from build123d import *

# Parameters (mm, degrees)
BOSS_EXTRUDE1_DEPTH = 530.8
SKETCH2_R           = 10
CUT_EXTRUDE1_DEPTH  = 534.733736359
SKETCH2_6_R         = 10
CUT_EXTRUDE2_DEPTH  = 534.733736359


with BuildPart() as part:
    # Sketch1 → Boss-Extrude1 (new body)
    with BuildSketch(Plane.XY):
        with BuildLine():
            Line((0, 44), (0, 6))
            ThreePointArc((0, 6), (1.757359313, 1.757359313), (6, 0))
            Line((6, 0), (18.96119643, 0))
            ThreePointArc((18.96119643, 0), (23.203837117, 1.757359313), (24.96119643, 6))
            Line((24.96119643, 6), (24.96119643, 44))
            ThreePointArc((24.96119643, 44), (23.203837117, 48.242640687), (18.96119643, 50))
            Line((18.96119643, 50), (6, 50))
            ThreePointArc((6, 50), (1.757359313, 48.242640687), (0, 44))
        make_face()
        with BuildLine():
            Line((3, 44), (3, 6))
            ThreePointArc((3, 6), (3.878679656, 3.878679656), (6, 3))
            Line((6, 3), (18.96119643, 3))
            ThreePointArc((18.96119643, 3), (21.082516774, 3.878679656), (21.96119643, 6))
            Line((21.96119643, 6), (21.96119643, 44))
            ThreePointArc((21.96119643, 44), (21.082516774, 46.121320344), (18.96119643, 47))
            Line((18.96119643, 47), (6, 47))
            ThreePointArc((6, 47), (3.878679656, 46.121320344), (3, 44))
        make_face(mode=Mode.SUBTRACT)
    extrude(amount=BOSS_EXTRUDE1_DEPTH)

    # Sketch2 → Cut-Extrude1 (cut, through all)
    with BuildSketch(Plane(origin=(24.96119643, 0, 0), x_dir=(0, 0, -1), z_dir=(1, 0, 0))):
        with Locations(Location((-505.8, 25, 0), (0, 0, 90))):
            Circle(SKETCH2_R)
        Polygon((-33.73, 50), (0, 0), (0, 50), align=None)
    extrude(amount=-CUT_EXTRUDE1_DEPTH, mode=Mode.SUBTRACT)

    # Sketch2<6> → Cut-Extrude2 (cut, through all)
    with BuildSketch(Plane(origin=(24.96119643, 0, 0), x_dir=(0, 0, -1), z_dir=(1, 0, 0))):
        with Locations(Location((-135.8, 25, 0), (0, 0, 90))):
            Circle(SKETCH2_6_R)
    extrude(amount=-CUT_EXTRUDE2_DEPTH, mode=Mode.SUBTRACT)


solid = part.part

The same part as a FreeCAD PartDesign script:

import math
import FreeCAD as App
import Part
import Sketcher

V = App.Vector

doc = App.newDocument("Part")
body = doc.addObject("PartDesign::Body", "Body")

sketch1 = body.newObject("Sketcher::SketchObject", "Sketch")
sketch1.AttachmentSupport = (doc.getObject("XY_Plane"), [""])
sketch1.MapMode = "FlatFace"
sketch1.addGeometry([
    Part.LineSegment(V(0, 44, 0), V(0, 6, 0)),
    Part.ArcOfCircle(Part.Circle(V(6, 6, 0), V(0, 0, 1), 6), math.radians(180), math.radians(270)),
    Part.LineSegment(V(6, 0, 0), V(19, 0, 0)),
    Part.ArcOfCircle(Part.Circle(V(19, 6, 0), V(0, 0, 1), 6), math.radians(-90), math.radians(0)),
    Part.LineSegment(V(25, 6, 0), V(25, 44, 0)),
    Part.ArcOfCircle(Part.Circle(V(19, 44, 0), V(0, 0, 1), 6), math.radians(0), math.radians(90)),
    Part.LineSegment(V(19, 50, 0), V(6, 50, 0)),
    Part.ArcOfCircle(Part.Circle(V(6, 44, 0), V(0, 0, 1), 6), math.radians(90), math.radians(180)),
    Part.LineSegment(V(3, 6, 0), V(3, 44, 0)),
    Part.ArcOfCircle(Part.Circle(V(6, 44, 0), V(0, 0, 1), 3), math.radians(90), math.radians(180)),
    Part.LineSegment(V(6, 47, 0), V(19, 47, 0)),
    Part.ArcOfCircle(Part.Circle(V(19, 44, 0), V(0, 0, 1), 3), math.radians(0), math.radians(90)),
    Part.LineSegment(V(22, 44, 0), V(22, 6, 0)),
    Part.ArcOfCircle(Part.Circle(V(19, 6, 0), V(0, 0, 1), 3), math.radians(-90), math.radians(0)),
    Part.LineSegment(V(19, 3, 0), V(6, 3, 0)),
    Part.ArcOfCircle(Part.Circle(V(6, 6, 0), V(0, 0, 1), 3), math.radians(180), math.radians(270)),
], False)
sketch1.addConstraint([
    Sketcher.Constraint("Tangent", 0, 2, 1, 1),
    Sketcher.Constraint("Tangent", 1, 2, 2, 1),
    Sketcher.Constraint("Tangent", 2, 2, 3, 1),
    Sketcher.Constraint("Tangent", 3, 2, 4, 1),
    Sketcher.Constraint("Tangent", 4, 2, 5, 1),
    Sketcher.Constraint("Tangent", 5, 2, 6, 1),
    Sketcher.Constraint("Tangent", 6, 2, 7, 1),
    Sketcher.Constraint("Tangent", 7, 2, 0, 1),
    Sketcher.Constraint("Tangent", 8, 2, 9, 2),
    Sketcher.Constraint("Tangent", 9, 1, 10, 1),
    Sketcher.Constraint("Tangent", 10, 2, 11, 2),
    Sketcher.Constraint("Tangent", 11, 1, 12, 1),
    Sketcher.Constraint("Tangent", 12, 2, 13, 2),
    Sketcher.Constraint("Tangent", 13, 1, 14, 1),
    Sketcher.Constraint("Tangent", 14, 2, 15, 2),
    Sketcher.Constraint("Tangent", 15, 1, 8, 1),
    Sketcher.Constraint("Vertical", 0),
    Sketcher.Constraint("Horizontal", 2),
    Sketcher.Constraint("Vertical", 4),
    Sketcher.Constraint("Horizontal", 6),
    Sketcher.Constraint("Vertical", 8),
    Sketcher.Constraint("Horizontal", 10),
    Sketcher.Constraint("Vertical", 12),
    Sketcher.Constraint("Horizontal", 14),
    Sketcher.Constraint("Coincident", 9, 3, 7, 3),
    Sketcher.Constraint("Coincident", 11, 3, 5, 3),
    Sketcher.Constraint("Coincident", 13, 3, 3, 3),
    Sketcher.Constraint("Equal", 1, 3),
    Sketcher.Constraint("Equal", 3, 5),
    Sketcher.Constraint("Equal", 5, 7),
    Sketcher.Constraint("Equal", 13, 15),
    Sketcher.Constraint("PointOnObject", 0, 2, -2),
    Sketcher.Constraint("PointOnObject", 1, 2, -1),
    Sketcher.Constraint("Radius", 1, 6.0),
    Sketcher.Constraint("Radius", 9, 3.0),
    Sketcher.Constraint("DistanceY", 0, 2, 0, 1, 38.0),
    Sketcher.Constraint("DistanceX", 2, 1, 2, 2, 12.961196),
])
pad1 = body.newObject("PartDesign::Pad", "Pad")
pad1.Profile = sketch1
pad1.Length = 530.8

sketch2 = body.newObject("Sketcher::SketchObject", "Sketch001")
sketch2.AttachmentSupport = (doc.getObject("YZ_Plane"), [""])
sketch2.MapMode = "FlatFace"
sketch2.AttachmentOffset = App.Placement(V(0, 0, 24.961196), App.Rotation())
sketch2.addGeometry([
    Part.Circle(V(25, 506, 0), V(0, 0, 1), 10),
    Part.LineSegment(V(50, 34, 0), V(0, 0, 0)),
    Part.LineSegment(V(0, 0, 0), V(50, 0, 0)),
    Part.LineSegment(V(50, 0, 0), V(50, 34, 0)),
], False)
sketch2.addConstraint([
    Sketcher.Constraint("Coincident", 1, 2, 2, 1),
    Sketcher.Constraint("Coincident", 2, 2, 3, 1),
    Sketcher.Constraint("Coincident", 3, 2, 1, 1),
    Sketcher.Constraint("Horizontal", 2),
    Sketcher.Constraint("Vertical", 3),
    Sketcher.Constraint("Coincident", 1, 2, -1, 1),
    Sketcher.Constraint("Diameter", 0, 20.0),
    Sketcher.Constraint("DistanceX", 2, 1, 2, 2, 50.0),
    Sketcher.Constraint("DistanceX", -1, 1, 0, 3, 25.0),
    Sketcher.Constraint("DistanceY", 3, 1, 3, 2, 33.73),
    Sketcher.Constraint("DistanceY", -1, 1, 0, 3, 505.8),
])
pocket1 = body.newObject("PartDesign::Pocket", "Pocket")
pocket1.Profile = sketch2
pocket1.Type = "ThroughAll"

sketch3 = body.newObject("Sketcher::SketchObject", "Sketch002")
sketch3.AttachmentSupport = (doc.getObject("YZ_Plane"), [""])
sketch3.MapMode = "FlatFace"
sketch3.AttachmentOffset = App.Placement(V(0, 0, 24.961196), App.Rotation())
sketch3.addGeometry(Part.Circle(V(25, 136, 0), V(0, 0, 1), 10), False)
sketch3.addConstraint([
    Sketcher.Constraint("Diameter", 0, 20.0),
    Sketcher.Constraint("DistanceX", -1, 1, 0, 3, 25.0),
    Sketcher.Constraint("DistanceY", -1, 1, 0, 3, 135.8),
])
pocket2 = body.newObject("PartDesign::Pocket", "Pocket001")
pocket2.Profile = sketch3
pocket2.Type = "ThroughAll"

doc.recompute()
